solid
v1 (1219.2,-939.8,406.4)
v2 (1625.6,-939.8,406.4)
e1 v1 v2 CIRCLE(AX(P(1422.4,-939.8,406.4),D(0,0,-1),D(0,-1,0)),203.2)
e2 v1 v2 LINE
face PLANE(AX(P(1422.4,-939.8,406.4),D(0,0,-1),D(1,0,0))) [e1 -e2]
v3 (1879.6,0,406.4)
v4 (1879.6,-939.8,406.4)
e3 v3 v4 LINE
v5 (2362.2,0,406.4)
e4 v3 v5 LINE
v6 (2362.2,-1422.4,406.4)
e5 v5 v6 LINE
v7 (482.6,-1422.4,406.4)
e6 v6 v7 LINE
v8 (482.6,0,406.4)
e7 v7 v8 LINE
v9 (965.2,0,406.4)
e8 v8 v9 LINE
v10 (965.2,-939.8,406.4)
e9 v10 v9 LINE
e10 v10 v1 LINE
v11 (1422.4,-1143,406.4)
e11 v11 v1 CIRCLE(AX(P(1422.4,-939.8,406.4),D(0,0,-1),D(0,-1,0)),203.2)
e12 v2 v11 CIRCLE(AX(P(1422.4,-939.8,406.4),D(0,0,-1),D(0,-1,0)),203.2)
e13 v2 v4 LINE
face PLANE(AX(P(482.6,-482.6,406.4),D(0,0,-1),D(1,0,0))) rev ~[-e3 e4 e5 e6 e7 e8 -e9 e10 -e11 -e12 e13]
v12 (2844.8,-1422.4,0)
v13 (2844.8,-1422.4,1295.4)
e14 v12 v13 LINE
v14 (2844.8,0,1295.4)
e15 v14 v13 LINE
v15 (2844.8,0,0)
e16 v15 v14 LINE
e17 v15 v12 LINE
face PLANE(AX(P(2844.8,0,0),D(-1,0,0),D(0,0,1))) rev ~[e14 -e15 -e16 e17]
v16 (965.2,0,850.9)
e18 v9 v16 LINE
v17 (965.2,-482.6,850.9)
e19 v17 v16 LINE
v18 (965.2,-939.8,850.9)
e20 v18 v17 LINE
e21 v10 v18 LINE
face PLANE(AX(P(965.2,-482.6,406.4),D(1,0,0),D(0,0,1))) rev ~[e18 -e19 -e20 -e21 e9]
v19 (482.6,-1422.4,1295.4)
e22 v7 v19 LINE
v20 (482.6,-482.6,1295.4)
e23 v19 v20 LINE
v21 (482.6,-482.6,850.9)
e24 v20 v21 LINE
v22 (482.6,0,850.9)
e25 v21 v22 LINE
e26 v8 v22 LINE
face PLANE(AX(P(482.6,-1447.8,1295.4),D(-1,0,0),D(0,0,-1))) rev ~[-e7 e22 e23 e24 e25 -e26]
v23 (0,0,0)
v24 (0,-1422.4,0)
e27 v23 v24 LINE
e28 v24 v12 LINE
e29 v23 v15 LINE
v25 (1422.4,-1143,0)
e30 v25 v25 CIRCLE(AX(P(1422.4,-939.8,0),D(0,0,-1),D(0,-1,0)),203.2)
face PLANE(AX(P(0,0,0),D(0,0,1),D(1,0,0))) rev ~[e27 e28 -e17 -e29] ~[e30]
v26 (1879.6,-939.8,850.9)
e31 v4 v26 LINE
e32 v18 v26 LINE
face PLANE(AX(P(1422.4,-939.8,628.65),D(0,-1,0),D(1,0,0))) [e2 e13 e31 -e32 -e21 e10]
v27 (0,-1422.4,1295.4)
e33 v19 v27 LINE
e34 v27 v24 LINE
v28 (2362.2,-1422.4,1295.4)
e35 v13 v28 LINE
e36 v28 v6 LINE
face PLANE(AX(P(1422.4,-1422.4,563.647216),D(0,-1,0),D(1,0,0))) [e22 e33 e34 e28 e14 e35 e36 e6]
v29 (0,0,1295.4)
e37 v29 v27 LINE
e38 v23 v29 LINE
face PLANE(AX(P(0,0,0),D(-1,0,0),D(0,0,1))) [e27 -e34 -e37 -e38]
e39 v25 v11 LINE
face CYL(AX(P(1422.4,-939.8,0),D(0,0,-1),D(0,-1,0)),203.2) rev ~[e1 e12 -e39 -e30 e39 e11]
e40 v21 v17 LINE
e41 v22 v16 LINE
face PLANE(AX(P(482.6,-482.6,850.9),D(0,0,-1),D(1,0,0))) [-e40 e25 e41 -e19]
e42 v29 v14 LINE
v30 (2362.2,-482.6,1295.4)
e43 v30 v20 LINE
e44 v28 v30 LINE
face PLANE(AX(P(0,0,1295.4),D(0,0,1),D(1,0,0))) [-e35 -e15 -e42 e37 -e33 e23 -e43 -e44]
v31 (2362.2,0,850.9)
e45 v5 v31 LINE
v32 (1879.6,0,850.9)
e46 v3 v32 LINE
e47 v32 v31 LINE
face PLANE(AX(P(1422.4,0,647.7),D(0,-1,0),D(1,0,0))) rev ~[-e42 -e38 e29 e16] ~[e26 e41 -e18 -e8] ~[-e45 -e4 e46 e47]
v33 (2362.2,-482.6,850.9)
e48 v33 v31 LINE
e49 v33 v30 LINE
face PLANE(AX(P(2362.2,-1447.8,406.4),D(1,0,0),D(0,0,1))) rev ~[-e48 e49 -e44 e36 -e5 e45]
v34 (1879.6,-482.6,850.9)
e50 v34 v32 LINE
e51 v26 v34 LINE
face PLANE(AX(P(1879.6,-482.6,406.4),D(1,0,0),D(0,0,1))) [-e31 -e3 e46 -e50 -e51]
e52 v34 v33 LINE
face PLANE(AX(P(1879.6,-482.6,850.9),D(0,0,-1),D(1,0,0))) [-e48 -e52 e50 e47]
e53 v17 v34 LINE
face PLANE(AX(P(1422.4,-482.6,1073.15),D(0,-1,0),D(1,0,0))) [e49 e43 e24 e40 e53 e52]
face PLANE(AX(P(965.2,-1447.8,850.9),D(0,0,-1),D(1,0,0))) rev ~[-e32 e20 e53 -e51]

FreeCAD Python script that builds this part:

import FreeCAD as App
import Part
import Sketcher
from FreeCAD import Vector
Q = App.Units.Quantity


def add_polygon(sketch, points):
    """Adds a closed chain of lines whose ends are joined by coincident constraints."""
    first, n = sketch.GeometryCount, len(points)
    for a, b in zip(points, points[1:] + points[:1]):
        sketch.addGeometry(Part.LineSegment(App.Vector(*a, 0), App.Vector(*b, 0)), False)
    for i in range(n):
        sketch.addConstraint(Sketcher.Constraint("Coincident", first + i, 2, first + (i + 1) % n, 1))

doc = App.newDocument("Part")
params = doc.addObject("Spreadsheet::Sheet", "Params")
for row, (alias, value) in enumerate([
    ("sketch1_width", "112 in"),
    ("sketch1_height", "51 in"),
    ("pad1_length", "57 in"),
    ("sketch2_width", "74 in"),
    ("sketch2_width2", "19 in"),
    ("sketch2_height", "35 in"),
    ("sketch2_height2", "17.5 in"),
    ("pocket1_length", "38 in"),
    ("sketch3_width", "19 in"),
    ("sketch3_height", "17.5 in"),
    ("pocket2_length", "20 in"),
    ("sketch4_width", "19 in"),
    ("sketch4_width2", "112 in"),
    ("sketch4_height", "35 in"),
    ("sketch4_height2", "51 in"),
    ("sketch4_height3", "17.5 in"),
    ("pocket3_length", "1 in"),
    ("sketch5_width", "36 in"),
    ("sketch5_height", "17.5 in"),
    ("pocket4_length", "19 in"),
    ("sketch6_diameter", "16 in"),
    ("pocket5_length", "16 in"),
], start=1):
    params.set(f"A{row}", alias)
    params.set(f"B{row}", "=" + value)
    params.setAlias(f"B{row}", alias)

body = doc.addObject("PartDesign::Body", "Body")

# Sketch on XZ plane
sketch1 = body.newObject("Sketcher::SketchObject", "Sketch")
sketch1.AttachmentSupport = (doc.getObject("XZ_Plane"), [""])
sketch1.MapMode = "FlatFace"
add_polygon(sketch1, [(0, 1295), (0, 0), (2845, 0), (2845, 1295)])  # lines 0-3
sketch1.addConstraint(Sketcher.Constraint("Vertical", 0))
sketch1.addConstraint(Sketcher.Constraint("Horizontal", 1))
sketch1.addConstraint(Sketcher.Constraint("Vertical", 2))
sketch1.addConstraint(Sketcher.Constraint("Horizontal", 3))
sketch1.addConstraint(Sketcher.Constraint("Coincident", 0, 2, -1, 1))
sketch1.addConstraint(Sketcher.Constraint("DistanceX", 1, 1, 1, 2, Q("112 in")))
sketch1.addConstraint(Sketcher.Constraint("DistanceY", 0, 2, 0, 1, Q("51 in")))
sketch1.setExpression("Constraints[9]", "Params.sketch1_width")
sketch1.setExpression("Constraints[10]", "Params.sketch1_height")
pad1 = body.newObject("PartDesign::Pad", "Pad")
pad1.Profile = sketch1
pad1.setExpression("Length", "Params.pad1_length")

# Sketch on XZ plane
sketch2 = body.newObject("Sketcher::SketchObject", "Sketch001")
sketch2.AttachmentSupport = (doc.getObject("XZ_Plane"), [""])
sketch2.MapMode = "FlatFace"
sketch2.AttachmentOffset = App.Placement(Vector(0, 0, 57 * 25.4), App.Rotation())
add_polygon(sketch2, [(2362, 1295), (483, 1295), (483, 406), (965, 406), (965, 851), (1880, 851), (1880, 406), (2362, 406)])  # lines 0-7
sketch2.addConstraint(Sketcher.Constraint("Horizontal", 0))
sketch2.addConstraint(Sketcher.Constraint("Vertical", 1))
sketch2.addConstraint(Sketcher.Constraint("Horizontal", 2))
sketch2.addConstraint(Sketcher.Constraint("Vertical", 3))
sketch2.addConstraint(Sketcher.Constraint("Horizontal", 4))
sketch2.addConstraint(Sketcher.Constraint("Vertical", 5))
sketch2.addConstraint(Sketcher.Constraint("Horizontal", 6))
sketch2.addConstraint(Sketcher.Constraint("Vertical", 7))
sketch2.addConstraint(Sketcher.Constraint("Horizontal", 2, 2, 5, 2))
sketch2.addConstraint(Sketcher.Constraint("Equal", 2, 6))
sketch2.addConstraint(Sketcher.Constraint("DistanceX", 0, 2, 0, 1, Q("74 in")))
sketch2.addConstraint(Sketcher.Constraint("DistanceX", 2, 1, 2, 2, Q("19 in")))
sketch2.addConstraint(Sketcher.Constraint("DistanceY", 1, 2, 1, 1, Q("35 in")))
sketch2.addConstraint(Sketcher.Constraint("DistanceY", 3, 1, 3, 2, Q("17.5 in")))
sketch2.addConstraint(Sketcher.Constraint("DistanceX", -1, 1, 0, 2, Q("19 in")))
sketch2.addConstraint(Sketcher.Constraint("DistanceY", -1, 1, 0, 2, Q("51 in")))
sketch2.setExpression("Constraints[18]", "Params.sketch2_width")
sketch2.setExpression("Constraints[19]", "Params.sketch2_width2")
sketch2.setExpression("Constraints[20]", "Params.sketch2_height")
sketch2.setExpression("Constraints[21]", "Params.sketch2_height2")
pocket1 = body.newObject("PartDesign::Pocket", "Pocket")
pocket1.Profile = sketch2
pocket1.setExpression("Length", "Params.pocket1_length")

# Sketch on XZ plane
sketch3 = body.newObject("Sketcher::SketchObject", "Sketch002")
sketch3.AttachmentSupport = (doc.getObject("XZ_Plane"), [""])
sketch3.MapMode = "FlatFace"
sketch3.AttachmentOffset = App.Placement(Vector(0, 0, 19 * 25.4), App.Rotation())
add_polygon(sketch3, [(483, 851), (483, 406), (965, 406), (965, 851)])  # lines 0-3
add_polygon(sketch3, [(1880, 851), (1880, 406), (2362, 406), (2362, 851)])  # lines 4-7
sketch3.addConstraint(Sketcher.Constraint("Vertical", 0))
sketch3.addConstraint(Sketcher.Constraint("Horizontal", 1))
sketch3.addConstraint(Sketcher.Constraint("Vertical", 2))
sketch3.addConstraint(Sketcher.Constraint("Horizontal", 3))
sketch3.addConstraint(Sketcher.Constraint("Vertical", 4))
sketch3.addConstraint(Sketcher.Constraint("Horizontal", 5))
sketch3.addConstraint(Sketcher.Constraint("Vertical", 6))
sketch3.addConstraint(Sketcher.Constraint("Horizontal", 7))
sketch3.addConstraint(Sketcher.Constraint("Horizontal", 1, 2, 4, 2))
sketch3.addConstraint(Sketcher.Constraint("Horizontal", 3, 2, 6, 2))
sketch3.addConstraint(Sketcher.Constraint("Equal", 3, 5))
sketch3.addConstraint(Sketcher.Constraint("DistanceX", 1, 1, 1, 2, Q("19 in")))
sketch3.addConstraint(Sketcher.Constraint("DistanceY", 0, 2, 0, 1, Q("17.5 in")))
sketch3.addConstraint(Sketcher.Constraint("DistanceX", -1, 1, 0, 2, Q("19 in")))
sketch3.addConstraint(Sketcher.Constraint("DistanceY", -1, 1, 0, 2, Q("16 in")))
sketch3.addConstraint(Sketcher.Constraint("DistanceX", -1, 1, 4, 2, Q("74 in")))
sketch3.setExpression("Constraints[19]", "Params.sketch3_width")
sketch3.setExpression("Constraints[20]", "Params.sketch3_height")
pocket2 = body.newObject("PartDesign::Pocket", "Pocket001")
pocket2.Profile = sketch3
pocket2.setExpression("Length", "Params.pocket2_length")

# Sketch on XZ plane
sketch4 = body.newObject("Sketcher::SketchObject", "Sketch003")
sketch4.AttachmentSupport = (doc.getObject("XZ_Plane"), [""])
sketch4.MapMode = "FlatFace"
sketch4.AttachmentOffset = App.Placement(Vector(0, 0, 57 * 25.4), App.Rotation())
add_polygon(sketch4, [(483, 406), (483, 1295), (0, 1295), (0, 0), (2845, 0), (2845, 1295), (2362, 1295), (2362, 406), (1880, 406), (1880, 851), (965, 851), (965, 406)])  # lines 0-11
sketch4.addConstraint(Sketcher.Constraint("Vertical", 0))
sketch4.addConstraint(Sketcher.Constraint("Horizontal", 1))
sketch4.addConstraint(Sketcher.Constraint("Vertical", 2))
sketch4.addConstraint(Sketcher.Constraint("Horizontal", 3))
sketch4.addConstraint(Sketcher.Constraint("Vertical", 4))
sketch4.addConstraint(Sketcher.Constraint("Horizontal", 5))
sketch4.addConstraint(Sketcher.Constraint("Vertical", 6))
sketch4.addConstraint(Sketcher.Constraint("Horizontal", 7))
sketch4.addConstraint(Sketcher.Constraint("Vertical", 8))
sketch4.addConstraint(Sketcher.Constraint("Horizontal", 9))
sketch4.addConstraint(Sketcher.Constraint("Vertical", 10))
sketch4.addConstraint(Sketcher.Constraint("Horizontal", 11))
sketch4.addConstraint(Sketcher.Constraint("Coincident", 2, 2, -1, 1))
sketch4.addConstraint(Sketcher.Constraint("Horizontal", 1, 2, 4, 2))
sketch4.addConstraint(Sketcher.Constraint("Horizontal", 7, 2, 10, 2))
sketch4.addConstraint(Sketcher.Constraint("Equal", 1, 5))
sketch4.addConstraint(Sketcher.Constraint("Equal", 5, 7))
sketch4.addConstraint(Sketcher.Constraint("Equal", 7, 11))
sketch4.addConstraint(Sketcher.Constraint("DistanceX", 1, 2, 1, 1, Q("19 in")))
sketch4.addConstraint(Sketcher.Constraint("DistanceX", 3, 1, 3, 2, Q("112 in")))
sketch4.addConstraint(Sketcher.Constraint("DistanceY", 0, 1, 0, 2, Q("35 in")))
sketch4.addConstraint(Sketcher.Constraint("DistanceY", 2, 2, 2, 1, Q("51 in")))
sketch4.addConstraint(Sketcher.Constraint("DistanceY", 8, 1, 8, 2, Q("17.5 in")))
sketch4.setExpression("Constraints[30]", "Params.sketch4_width")
sketch4.setExpression("Constraints[31]", "Params.sketch4_width2")
sketch4.setExpression("Constraints[32]", "Params.sketch4_height")
sketch4.setExpression("Constraints[33]", "Params.sketch4_height2")
sketch4.setExpression("Constraints[34]", "Params.sketch4_height3")
pocket3 = body.newObject("PartDesign::Pocket", "Pocket002")
pocket3.Profile = sketch4
pocket3.setExpression("Length", "Params.pocket3_length")

# Sketch on XZ plane
sketch5 = body.newObject("Sketcher::SketchObject", "Sketch004")
sketch5.AttachmentSupport = (doc.getObject("XZ_Plane"), [""])
sketch5.MapMode = "FlatFace"
sketch5.AttachmentOffset = App.Placement(Vector(0, 0, 56 * 25.4), App.Rotation())
add_polygon(sketch5, [(965, 851), (965, 406), (1880, 406), (1880, 851)])  # lines 0-3
sketch5.addConstraint(Sketcher.Constraint("Vertical", 0))
sketch5.addConstraint(Sketcher.Constraint("Horizontal", 1))
sketch5.addConstraint(Sketcher.Constraint("Vertical", 2))
sketch5.addConstraint(Sketcher.Constraint("Horizontal", 3))
sketch5.addConstraint(Sketcher.Constraint("DistanceX", 1, 1, 1, 2, Q("36 in")))
sketch5.addConstraint(Sketcher.Constraint("DistanceY", 0, 2, 0, 1, Q("17.5 in")))
sketch5.addConstraint(Sketcher.Constraint("DistanceX", -1, 1, 0, 2, Q("38 in")))
sketch5.addConstraint(Sketcher.Constraint("DistanceY", -1, 1, 0, 2, Q("16 in")))
sketch5.setExpression("Constraints[8]", "Params.sketch5_width")
sketch5.setExpression("Constraints[9]", "Params.sketch5_height")
pocket4 = body.newObject("PartDesign::Pocket", "Pocket003")
pocket4.Profile = sketch5
pocket4.setExpression("Length", "Params.pocket4_length")

# Sketch on XY plane
sketch6 = body.newObject("Sketcher::SketchObject", "Sketch005")
sketch6.AttachmentSupport = (doc.getObject("XY_Plane"), [""])
sketch6.MapMode = "FlatFace"
sketch6.addGeometry(Part.Circle(Vector(1422, -940, 0), Vector(0, 0, 1), 203), False)
sketch6.addConstraint(Sketcher.Constraint("Diameter", 0, Q("16 in")))
sketch6.addConstraint(Sketcher.Constraint("DistanceX", -1, 1, 0, 3, Q("56 in")))
sketch6.addConstraint(Sketcher.Constraint("DistanceY", 0, 3, -1, 1, Q("37 in")))
sketch6.setExpression("Constraints[0]", "Params.sketch6_diameter")
pocket5 = body.newObject("PartDesign::Pocket", "Pocket004")
pocket5.Profile = sketch6
pocket5.setExpression("Length", "Params.pocket5_length")
pocket5.Reversed = True

doc.recompute()
